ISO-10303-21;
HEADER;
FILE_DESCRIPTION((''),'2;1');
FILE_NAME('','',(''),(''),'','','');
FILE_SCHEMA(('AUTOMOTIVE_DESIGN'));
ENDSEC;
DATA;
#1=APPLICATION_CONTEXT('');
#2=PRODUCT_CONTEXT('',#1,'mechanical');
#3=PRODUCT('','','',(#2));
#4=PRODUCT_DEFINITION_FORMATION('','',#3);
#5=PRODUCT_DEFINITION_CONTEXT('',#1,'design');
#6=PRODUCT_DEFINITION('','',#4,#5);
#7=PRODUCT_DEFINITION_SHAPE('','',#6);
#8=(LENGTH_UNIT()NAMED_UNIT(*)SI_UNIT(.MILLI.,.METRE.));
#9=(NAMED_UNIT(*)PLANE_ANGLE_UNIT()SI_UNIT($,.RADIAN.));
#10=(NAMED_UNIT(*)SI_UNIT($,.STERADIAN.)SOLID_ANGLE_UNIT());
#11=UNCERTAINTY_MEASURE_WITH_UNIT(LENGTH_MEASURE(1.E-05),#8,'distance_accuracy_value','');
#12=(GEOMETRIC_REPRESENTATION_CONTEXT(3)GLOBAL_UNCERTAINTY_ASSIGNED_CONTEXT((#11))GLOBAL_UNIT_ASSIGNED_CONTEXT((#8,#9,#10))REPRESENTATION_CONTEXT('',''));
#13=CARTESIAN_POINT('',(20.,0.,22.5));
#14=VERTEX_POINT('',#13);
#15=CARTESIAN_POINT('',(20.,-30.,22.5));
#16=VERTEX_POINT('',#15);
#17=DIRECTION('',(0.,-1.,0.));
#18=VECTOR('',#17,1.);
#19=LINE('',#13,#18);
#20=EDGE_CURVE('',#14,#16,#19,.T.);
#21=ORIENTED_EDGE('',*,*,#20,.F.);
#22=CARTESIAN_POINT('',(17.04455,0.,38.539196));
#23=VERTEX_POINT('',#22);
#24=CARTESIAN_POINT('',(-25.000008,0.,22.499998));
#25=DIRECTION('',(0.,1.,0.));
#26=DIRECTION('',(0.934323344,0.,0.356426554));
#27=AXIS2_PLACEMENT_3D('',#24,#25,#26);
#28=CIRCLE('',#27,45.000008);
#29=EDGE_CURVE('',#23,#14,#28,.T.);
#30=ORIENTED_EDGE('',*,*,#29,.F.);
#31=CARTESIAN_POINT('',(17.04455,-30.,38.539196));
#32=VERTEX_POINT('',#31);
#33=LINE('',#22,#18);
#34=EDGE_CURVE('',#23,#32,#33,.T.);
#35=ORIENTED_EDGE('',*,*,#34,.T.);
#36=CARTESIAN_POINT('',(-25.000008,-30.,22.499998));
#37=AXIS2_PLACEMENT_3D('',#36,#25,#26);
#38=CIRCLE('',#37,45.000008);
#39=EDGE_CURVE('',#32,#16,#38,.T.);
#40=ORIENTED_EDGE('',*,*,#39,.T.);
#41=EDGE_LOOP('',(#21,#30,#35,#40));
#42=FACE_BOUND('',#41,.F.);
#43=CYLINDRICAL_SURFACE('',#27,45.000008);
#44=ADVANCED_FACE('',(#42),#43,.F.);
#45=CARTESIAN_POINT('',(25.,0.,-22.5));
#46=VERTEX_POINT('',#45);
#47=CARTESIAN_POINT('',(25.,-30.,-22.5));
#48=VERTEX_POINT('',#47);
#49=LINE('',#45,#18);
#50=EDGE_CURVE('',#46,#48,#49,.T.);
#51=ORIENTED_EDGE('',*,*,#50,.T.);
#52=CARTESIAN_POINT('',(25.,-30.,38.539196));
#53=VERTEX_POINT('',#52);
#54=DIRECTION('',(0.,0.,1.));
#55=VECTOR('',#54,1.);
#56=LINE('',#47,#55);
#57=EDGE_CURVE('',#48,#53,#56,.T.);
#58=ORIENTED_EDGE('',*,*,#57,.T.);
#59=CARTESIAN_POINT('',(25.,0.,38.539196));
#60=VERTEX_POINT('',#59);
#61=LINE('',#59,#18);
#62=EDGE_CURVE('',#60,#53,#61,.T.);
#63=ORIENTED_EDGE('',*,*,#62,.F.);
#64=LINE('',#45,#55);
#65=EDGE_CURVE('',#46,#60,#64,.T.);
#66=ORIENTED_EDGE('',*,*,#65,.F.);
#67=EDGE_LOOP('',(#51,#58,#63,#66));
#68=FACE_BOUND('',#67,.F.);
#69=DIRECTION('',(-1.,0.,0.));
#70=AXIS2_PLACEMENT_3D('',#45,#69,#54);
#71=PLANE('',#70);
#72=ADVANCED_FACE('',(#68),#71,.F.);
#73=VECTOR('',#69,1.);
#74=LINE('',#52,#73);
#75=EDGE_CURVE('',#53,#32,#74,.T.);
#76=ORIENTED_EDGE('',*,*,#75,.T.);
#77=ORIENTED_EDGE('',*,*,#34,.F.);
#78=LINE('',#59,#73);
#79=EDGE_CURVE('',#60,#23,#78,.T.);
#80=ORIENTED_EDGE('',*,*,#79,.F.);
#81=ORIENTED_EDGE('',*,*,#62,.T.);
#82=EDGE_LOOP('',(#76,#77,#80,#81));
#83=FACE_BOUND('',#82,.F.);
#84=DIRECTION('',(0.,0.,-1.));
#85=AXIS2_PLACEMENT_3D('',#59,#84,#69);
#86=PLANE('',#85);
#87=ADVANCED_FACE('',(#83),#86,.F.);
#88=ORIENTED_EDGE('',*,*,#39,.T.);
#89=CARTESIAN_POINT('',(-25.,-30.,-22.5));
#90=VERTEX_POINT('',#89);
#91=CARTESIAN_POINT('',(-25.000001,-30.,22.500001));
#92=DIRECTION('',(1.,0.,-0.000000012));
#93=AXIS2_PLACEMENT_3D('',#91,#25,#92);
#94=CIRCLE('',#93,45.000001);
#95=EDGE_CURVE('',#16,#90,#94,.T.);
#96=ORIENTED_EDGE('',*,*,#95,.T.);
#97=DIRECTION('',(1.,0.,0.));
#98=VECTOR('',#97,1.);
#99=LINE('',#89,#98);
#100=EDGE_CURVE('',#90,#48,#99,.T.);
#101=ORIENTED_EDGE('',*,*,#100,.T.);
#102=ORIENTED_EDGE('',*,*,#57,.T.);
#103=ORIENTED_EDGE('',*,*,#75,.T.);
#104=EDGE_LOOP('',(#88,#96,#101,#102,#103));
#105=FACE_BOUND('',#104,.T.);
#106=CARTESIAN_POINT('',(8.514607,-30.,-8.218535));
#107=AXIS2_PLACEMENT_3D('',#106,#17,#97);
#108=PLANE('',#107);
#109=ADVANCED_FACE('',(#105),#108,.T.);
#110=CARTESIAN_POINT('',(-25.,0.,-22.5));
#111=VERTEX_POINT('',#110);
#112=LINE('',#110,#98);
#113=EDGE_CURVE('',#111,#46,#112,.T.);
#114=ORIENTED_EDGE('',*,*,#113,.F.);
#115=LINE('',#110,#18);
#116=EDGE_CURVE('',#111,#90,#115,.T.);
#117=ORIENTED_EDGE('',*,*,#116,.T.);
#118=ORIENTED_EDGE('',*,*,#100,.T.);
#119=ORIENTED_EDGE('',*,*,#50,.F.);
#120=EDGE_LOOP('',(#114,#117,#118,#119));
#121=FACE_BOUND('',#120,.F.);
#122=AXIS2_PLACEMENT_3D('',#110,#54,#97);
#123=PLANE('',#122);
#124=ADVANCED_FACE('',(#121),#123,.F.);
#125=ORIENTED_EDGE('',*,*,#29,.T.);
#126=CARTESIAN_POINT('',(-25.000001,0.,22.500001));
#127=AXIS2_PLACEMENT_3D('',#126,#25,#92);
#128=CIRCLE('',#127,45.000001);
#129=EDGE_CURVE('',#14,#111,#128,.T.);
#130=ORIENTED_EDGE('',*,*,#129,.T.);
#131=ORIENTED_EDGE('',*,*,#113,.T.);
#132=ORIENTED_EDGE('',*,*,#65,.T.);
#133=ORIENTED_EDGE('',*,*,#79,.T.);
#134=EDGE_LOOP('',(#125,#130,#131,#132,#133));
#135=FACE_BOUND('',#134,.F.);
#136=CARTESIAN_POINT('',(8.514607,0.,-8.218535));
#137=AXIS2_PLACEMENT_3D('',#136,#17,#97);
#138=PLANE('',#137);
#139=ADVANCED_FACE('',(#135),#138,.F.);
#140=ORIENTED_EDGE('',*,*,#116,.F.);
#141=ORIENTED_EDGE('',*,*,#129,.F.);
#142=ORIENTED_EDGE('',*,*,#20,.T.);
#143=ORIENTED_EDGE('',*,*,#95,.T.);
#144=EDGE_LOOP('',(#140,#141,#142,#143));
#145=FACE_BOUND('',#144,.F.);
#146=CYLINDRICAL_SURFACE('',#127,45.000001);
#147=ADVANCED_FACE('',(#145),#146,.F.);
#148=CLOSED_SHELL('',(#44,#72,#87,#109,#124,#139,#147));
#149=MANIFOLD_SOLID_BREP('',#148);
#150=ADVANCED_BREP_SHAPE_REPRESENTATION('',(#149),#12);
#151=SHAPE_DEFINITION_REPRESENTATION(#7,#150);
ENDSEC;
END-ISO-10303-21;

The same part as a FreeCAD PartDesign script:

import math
import FreeCAD as App
import Part
import Sketcher
Q = App.Units.Quantity

doc = App.newDocument("Part")
params = doc.addObject("Spreadsheet::Sheet", "Params")
for row, (alias, value) in enumerate([
    ("sketch1_radius", "45.000001 mm"),
    ("sketch1_width", "50 mm"),
    ("pad1_length", "30 mm"),
], start=1):
    params.set(f"A{row}", alias)
    params.set(f"B{row}", "=" + value)
    params.setAlias(f"B{row}", alias)

body = doc.addObject("PartDesign::Body", "Body")

# Sketch on XZ plane
sketch1 = doc.addObject("Sketcher::SketchObject", "Sketch")
body.addObject(sketch1)
sketch1.AttachmentSupport = (doc.XZ_Plane, [""])
sketch1.MapMode = "FlatFace"
sketch1.addGeometry([
    Part.ArcOfCircle(Part.Circle(App.Vector(-25.000001, 22.500001, 0), App.Vector(0, 0, 1), 45.000001), math.radians(-89.999999), math.radians(-0.000001)),  # 0
    Part.LineSegment(App.Vector(-25, -22.5, 0), App.Vector(25, -22.5, 0)),  # 1
    Part.LineSegment(App.Vector(25, -22.5, 0), App.Vector(25, 38.539196, 0)),  # 2
    Part.LineSegment(App.Vector(25, 38.539196, 0), App.Vector(17.04455, 38.539196, 0)),  # 3
    Part.ArcOfCircle(Part.Circle(App.Vector(-25.000008, 22.499998, 0), App.Vector(0, 0, 1), 45.000008), math.radians(0.000002), math.radians(20.8809)),  # 4
], False)
sketch1.addConstraint([
    Sketcher.Constraint("Tangent", 0, 1, 1, 1),
    Sketcher.Constraint("Coincident", 1, 2, 2, 1),
    Sketcher.Constraint("Coincident", 2, 2, 3, 1),
    Sketcher.Constraint("Coincident", 3, 2, 4, 2),
    Sketcher.Constraint("Tangent", 4, 1, 0, 2),
    Sketcher.Constraint("Horizontal", 1),
    Sketcher.Constraint("Vertical", 2),
    Sketcher.Constraint("Horizontal", 3),
    Sketcher.Constraint("Horizontal", 0, 3, 4, 1),
    Sketcher.Constraint("Radius", 0, Q("45.000001 mm")),
    Sketcher.Constraint("DistanceX", 1, 1, 1, 2, Q("50 mm")),
    Sketcher.Constraint("DistanceX", 0, 3, -1, 1, Q("25.000001 mm")),
    Sketcher.Constraint("DistanceY", -1, 1, 0, 3, Q("22.500001 mm")),
    Sketcher.Constraint("Radius", 4, Q("45.000008 mm")),
    Sketcher.Constraint("DistanceX", 3, 2, 3, 1, Q("7.95545 mm")),
])
sketch1.setExpression("Constraints[9]", "Params.sketch1_radius")
sketch1.setExpression("Constraints[10]", "Params.sketch1_width")
pad1 = doc.addObject("PartDesign::Pad", "Pad")
body.addObject(pad1)
pad1.Profile = sketch1
pad1.setExpression("Length", "Params.pad1_length")

doc.recompute()
